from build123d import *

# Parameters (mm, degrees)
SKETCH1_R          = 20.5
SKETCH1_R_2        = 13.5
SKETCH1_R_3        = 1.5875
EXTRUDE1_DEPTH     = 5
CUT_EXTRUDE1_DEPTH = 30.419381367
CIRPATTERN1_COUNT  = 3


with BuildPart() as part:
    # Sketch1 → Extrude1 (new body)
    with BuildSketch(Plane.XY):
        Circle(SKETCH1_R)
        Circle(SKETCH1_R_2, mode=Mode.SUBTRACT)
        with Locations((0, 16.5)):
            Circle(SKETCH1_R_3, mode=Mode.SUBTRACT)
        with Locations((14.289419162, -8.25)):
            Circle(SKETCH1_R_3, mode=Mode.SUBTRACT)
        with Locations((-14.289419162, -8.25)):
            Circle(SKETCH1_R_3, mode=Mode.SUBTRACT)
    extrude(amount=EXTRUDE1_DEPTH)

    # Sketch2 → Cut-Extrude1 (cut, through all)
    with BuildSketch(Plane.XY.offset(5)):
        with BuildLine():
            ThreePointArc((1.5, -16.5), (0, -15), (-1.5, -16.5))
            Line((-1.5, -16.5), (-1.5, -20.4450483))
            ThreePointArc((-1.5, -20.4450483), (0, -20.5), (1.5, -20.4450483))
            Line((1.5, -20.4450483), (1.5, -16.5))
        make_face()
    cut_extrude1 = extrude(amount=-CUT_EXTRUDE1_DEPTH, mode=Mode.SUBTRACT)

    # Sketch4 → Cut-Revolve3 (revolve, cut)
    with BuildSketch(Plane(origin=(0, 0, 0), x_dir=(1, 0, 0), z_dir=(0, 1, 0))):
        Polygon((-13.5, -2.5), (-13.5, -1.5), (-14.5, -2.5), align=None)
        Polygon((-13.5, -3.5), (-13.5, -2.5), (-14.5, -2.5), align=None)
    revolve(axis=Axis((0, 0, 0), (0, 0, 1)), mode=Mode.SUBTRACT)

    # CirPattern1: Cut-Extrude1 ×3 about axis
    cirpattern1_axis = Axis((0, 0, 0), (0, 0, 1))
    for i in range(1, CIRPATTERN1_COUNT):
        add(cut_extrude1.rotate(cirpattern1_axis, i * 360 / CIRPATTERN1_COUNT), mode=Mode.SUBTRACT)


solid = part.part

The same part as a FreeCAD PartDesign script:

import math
import FreeCAD as App
import Part
import Sketcher
from FreeCAD import Vector


def add_polygon(sketch, points):
    """Adds a closed chain of lines whose ends are joined by coincident constraints."""
    first, n = sketch.GeometryCount, len(points)
    for a, b in zip(points, points[1:] + points[:1]):
        sketch.addGeometry(Part.LineSegment(App.Vector(*a, 0), App.Vector(*b, 0)), False)
    for i in range(n):
        sketch.addConstraint(Sketcher.Constraint("Coincident", first + i, 2, first + (i + 1) % n, 1))

doc = App.newDocument("Part")
body = doc.addObject("PartDesign::Body", "Body")

# Sketch on XY plane
sketch1 = doc.addObject("Sketcher::SketchObject", "Sketch")
body.addObject(sketch1)
sketch1.AttachmentSupport = (doc.XY_Plane, [""])
sketch1.MapMode = "FlatFace"
sketch1.addGeometry(Part.Circle(Vector(0, 0, 0), Vector(0, 0, 1), 20.5), False)
sketch1.addGeometry(Part.Circle(Vector(-14.3, -8.2, 0), Vector(0, 0, 1), 1.6), False)
sketch1.addGeometry(Part.Circle(Vector(14.3, -8.2, 0), Vector(0, 0, 1), 1.6), False)
sketch1.addGeometry(Part.Circle(Vector(0, 0, 0), Vector(0, 0, 1), 13.5), False)
sketch1.addGeometry(Part.Circle(Vector(0, 16.5, 0), Vector(0, 0, 1), 1.6), False)
sketch1.addConstraint(Sketcher.Constraint("Coincident", 0, 3, -1, 1))
sketch1.addConstraint(Sketcher.Constraint("Coincident", 3, 3, -1, 1))
sketch1.addConstraint(Sketcher.Constraint("Equal", 1, 2))
sketch1.addConstraint(Sketcher.Constraint("Equal", 2, 4))
sketch1.addConstraint(Sketcher.Constraint("Symmetric", 1, 3, 2, 3, -2))
sketch1.addConstraint(Sketcher.Constraint("PointOnObject", 4, 3, -2))
sketch1.addConstraint(Sketcher.Constraint("Diameter", 0, 41.0))
sketch1.addConstraint(Sketcher.Constraint("Diameter", 3, 27.0))
sketch1.addConstraint(Sketcher.Constraint("Diameter", 1, 3.175))
sketch1.addConstraint(Sketcher.Constraint("DistanceY", -1, 1, 4, 3, 16.5))
sketch1.addConstraint(Sketcher.Constraint("DistanceY", 1, 3, -1, 1, 8.25))
sketch1.addConstraint(Sketcher.Constraint("DistanceX", 1, 3, -1, 1, 14.289419))
pad1 = doc.addObject("PartDesign::Pad", "Pad")
body.addObject(pad1)
pad1.Profile = sketch1
pad1.Length = 5

# Sketch on XY plane
sketch2 = doc.addObject("Sketcher::SketchObject", "Sketch001")
body.addObject(sketch2)
sketch2.AttachmentSupport = (doc.XY_Plane, [""])
sketch2.MapMode = "FlatFace"
sketch2.AttachmentOffset = App.Placement(Vector(0, 0, 5), App.Rotation())
sketch2.addGeometry(Part.ArcOfCircle(Part.Circle(Vector(0, -16.5, 0), Vector(0, 0, 1), 1.5), math.radians(0), math.radians(180)), False)
sketch2.addGeometry(Part.LineSegment(Vector(-1.5, -16.5, 0), Vector(-1.5, -20.4, 0)), False)
sketch2.addGeometry(Part.ArcOfCircle(Part.Circle(Vector(0, 0, 0), Vector(0, 0, 1), 20.5), math.radians(-94.2), math.radians(-85.8)), False)
sketch2.addGeometry(Part.LineSegment(Vector(1.5, -20.4, 0), Vector(1.5, -16.5, 0)), False)
sketch2.addConstraint(Sketcher.Constraint("Tangent", 0, 2, 1, 1))
sketch2.addConstraint(Sketcher.Constraint("Coincident", 1, 2, 2, 1))
sketch2.addConstraint(Sketcher.Constraint("Coincident", 2, 2, 3, 1))
sketch2.addConstraint(Sketcher.Constraint("Tangent", 3, 2, 0, 1))
sketch2.addConstraint(Sketcher.Constraint("Vertical", 1))
sketch2.addConstraint(Sketcher.Constraint("Vertical", 3))
sketch2.addConstraint(Sketcher.Constraint("Coincident", 2, 3, -1, 1))
sketch2.addConstraint(Sketcher.Constraint("PointOnObject", 0, 3, -2))
sketch2.addConstraint(Sketcher.Constraint("Radius", 0, 1.5))
sketch2.addConstraint(Sketcher.Constraint("Radius", 2, 20.5))
sketch2.addConstraint(Sketcher.Constraint("DistanceY", 0, 3, -1, 1, 16.5))
pocket1 = doc.addObject("PartDesign::Pocket", "Pocket")
body.addObject(pocket1)
pocket1.Profile = sketch2
pocket1.Type = "ThroughAll"

# Sketch on XZ plane
sketch3 = doc.addObject("Sketcher::SketchObject", "Sketch002")
body.addObject(sketch3)
sketch3.AttachmentSupport = (doc.XZ_Plane, [""])
sketch3.MapMode = "FlatFace"
add_polygon(sketch3, [(-13.5, 1.5), (-14.5, 2.5), (-13.5, 3.5)])  # lines 0-2
sketch3.addConstraint(Sketcher.Constraint("Vertical", 2))
sketch3.addConstraint(Sketcher.Constraint("Perpendicular", 0, 1))
sketch3.addConstraint(Sketcher.Constraint("Equal", 0, 1))
sketch3.addConstraint(Sketcher.Constraint("DistanceY", 2, 2, 2, 1, 2.0))
sketch3.addConstraint(Sketcher.Constraint("DistanceX", 0, 2, -1, 1, 14.5))
sketch3.addConstraint(Sketcher.Constraint("DistanceY", -1, 1, 0, 2, 2.5))
groove = doc.addObject("PartDesign::Groove", "Groove")
body.addObject(groove)
groove.Profile = sketch3
groove.ReferenceAxis = (sketch3, ["V_Axis"])
groove.Angle = 360
doc.recompute()

polarpattern = doc.addObject("PartDesign::PolarPattern", "PolarPattern")
body.addObject(polarpattern)
polarpattern.Originals = [pocket1]
polarpattern.Axis = (doc.Z_Axis, [""])
polarpattern.Angle = 360
polarpattern.Occurrences = 3
body.Tip = polarpattern

doc.recompute()
